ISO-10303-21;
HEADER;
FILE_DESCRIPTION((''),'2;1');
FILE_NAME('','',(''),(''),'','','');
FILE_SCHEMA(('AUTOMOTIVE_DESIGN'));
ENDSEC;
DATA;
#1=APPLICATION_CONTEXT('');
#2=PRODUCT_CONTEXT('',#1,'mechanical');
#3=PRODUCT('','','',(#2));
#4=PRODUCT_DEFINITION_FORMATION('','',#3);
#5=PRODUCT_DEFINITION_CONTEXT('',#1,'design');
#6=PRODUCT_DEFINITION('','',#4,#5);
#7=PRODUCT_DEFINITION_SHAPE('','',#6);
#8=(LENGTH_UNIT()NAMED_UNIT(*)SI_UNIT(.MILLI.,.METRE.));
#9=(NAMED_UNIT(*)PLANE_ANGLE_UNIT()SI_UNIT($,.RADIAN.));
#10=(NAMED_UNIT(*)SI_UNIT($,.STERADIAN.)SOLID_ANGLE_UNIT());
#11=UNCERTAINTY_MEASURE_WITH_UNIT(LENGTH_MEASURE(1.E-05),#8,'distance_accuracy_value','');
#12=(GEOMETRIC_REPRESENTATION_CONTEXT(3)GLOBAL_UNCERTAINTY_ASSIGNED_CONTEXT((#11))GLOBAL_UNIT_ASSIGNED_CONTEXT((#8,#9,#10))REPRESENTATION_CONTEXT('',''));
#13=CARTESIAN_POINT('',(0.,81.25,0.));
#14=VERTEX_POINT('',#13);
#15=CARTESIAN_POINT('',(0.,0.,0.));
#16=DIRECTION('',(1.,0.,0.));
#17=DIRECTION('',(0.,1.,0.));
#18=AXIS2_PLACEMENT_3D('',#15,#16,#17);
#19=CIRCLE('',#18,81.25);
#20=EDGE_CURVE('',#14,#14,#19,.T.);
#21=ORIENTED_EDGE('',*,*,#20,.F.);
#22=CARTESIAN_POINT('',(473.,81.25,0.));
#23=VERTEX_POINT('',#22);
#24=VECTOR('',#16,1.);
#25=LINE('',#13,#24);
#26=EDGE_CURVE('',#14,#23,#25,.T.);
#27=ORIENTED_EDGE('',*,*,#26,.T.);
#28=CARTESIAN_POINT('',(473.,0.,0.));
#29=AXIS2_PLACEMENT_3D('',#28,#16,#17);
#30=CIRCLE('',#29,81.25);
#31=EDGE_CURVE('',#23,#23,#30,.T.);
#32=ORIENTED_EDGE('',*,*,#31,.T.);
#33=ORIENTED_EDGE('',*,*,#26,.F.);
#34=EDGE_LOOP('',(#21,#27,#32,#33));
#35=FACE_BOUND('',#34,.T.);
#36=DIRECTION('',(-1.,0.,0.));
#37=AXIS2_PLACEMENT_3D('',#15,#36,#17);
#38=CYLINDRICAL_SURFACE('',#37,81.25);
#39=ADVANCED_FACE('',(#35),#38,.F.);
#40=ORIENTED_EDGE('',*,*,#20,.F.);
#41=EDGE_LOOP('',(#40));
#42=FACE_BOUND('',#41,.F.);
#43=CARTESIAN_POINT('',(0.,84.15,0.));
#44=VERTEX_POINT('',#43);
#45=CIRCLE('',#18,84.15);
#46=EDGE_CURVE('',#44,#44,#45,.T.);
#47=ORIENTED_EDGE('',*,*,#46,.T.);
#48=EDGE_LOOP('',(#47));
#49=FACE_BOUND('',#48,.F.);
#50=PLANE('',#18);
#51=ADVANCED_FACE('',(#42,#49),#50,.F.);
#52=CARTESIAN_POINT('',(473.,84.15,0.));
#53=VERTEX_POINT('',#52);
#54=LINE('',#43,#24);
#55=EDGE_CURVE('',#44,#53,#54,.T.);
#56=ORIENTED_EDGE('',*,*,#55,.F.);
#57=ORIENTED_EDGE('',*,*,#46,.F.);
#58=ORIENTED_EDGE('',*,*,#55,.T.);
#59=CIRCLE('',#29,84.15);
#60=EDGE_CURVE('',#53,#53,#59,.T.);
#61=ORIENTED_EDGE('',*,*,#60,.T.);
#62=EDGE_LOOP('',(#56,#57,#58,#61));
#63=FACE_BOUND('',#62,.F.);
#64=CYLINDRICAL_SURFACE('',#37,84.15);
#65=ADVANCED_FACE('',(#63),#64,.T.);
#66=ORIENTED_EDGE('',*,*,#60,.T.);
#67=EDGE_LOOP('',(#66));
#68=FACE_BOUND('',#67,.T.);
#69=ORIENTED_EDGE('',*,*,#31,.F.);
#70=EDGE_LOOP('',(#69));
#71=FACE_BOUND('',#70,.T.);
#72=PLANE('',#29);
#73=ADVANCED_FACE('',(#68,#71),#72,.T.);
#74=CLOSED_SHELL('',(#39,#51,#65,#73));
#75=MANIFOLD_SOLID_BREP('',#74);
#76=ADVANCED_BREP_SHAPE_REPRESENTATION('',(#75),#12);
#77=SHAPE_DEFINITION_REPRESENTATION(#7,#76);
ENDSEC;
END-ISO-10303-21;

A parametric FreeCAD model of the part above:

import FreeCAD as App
import Part
import Sketcher

V = App.Vector

doc = App.newDocument("Part")
body = doc.addObject("PartDesign::Body", "Body")

# Sketch on YZ plane
sketch1 = body.newObject("Sketcher::SketchObject", "Sketch")
sketch1.AttachmentSupport = (doc.getObject("YZ_Plane"), [""])
sketch1.MapMode = "FlatFace"
sketch1.addGeometry(Part.Circle(V(0, 0, 0), V(0, 0, 1), 84.15), False)
sketch1.addGeometry(Part.Circle(V(0, 0, 0), V(0, 0, 1), 81.25), False)
sketch1.addConstraint(Sketcher.Constraint("Coincident", 0, 3, -1, 1))
sketch1.addConstraint(Sketcher.Constraint("Coincident", 1, 3, -1, 1))
sketch1.addConstraint(Sketcher.Constraint("Diameter", 0, 168.3))
sketch1.addConstraint(Sketcher.Constraint("Diameter", 1, 162.5))
pad1 = body.newObject("PartDesign::Pad", "Pad")
pad1.Profile = sketch1
pad1.Length = 473

doc.recompute()
